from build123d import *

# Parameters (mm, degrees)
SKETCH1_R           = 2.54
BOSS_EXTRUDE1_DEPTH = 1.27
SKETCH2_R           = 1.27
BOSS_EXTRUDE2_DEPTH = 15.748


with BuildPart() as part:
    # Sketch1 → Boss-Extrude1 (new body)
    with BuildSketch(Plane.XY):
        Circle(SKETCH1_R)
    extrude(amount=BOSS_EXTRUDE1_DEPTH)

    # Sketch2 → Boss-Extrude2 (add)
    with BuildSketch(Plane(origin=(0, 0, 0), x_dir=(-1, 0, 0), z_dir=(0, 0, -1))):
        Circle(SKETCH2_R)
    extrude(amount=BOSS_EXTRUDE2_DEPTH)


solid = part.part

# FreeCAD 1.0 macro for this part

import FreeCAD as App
import Part
import Sketcher
from FreeCAD import Vector
Q = App.Units.Quantity

doc = App.newDocument("Part")
body = doc.addObject("PartDesign::Body", "Body")

# Sketch on XY plane
sketch1 = body.newObject("Sketcher::SketchObject", "Sketch")
sketch1.AttachmentSupport = (doc.getObject("XY_Plane"), [""])
sketch1.MapMode = "FlatFace"
sketch1.addGeometry(Part.Circle(Vector(0, 0, 0), Vector(0, 0, 1), 2.5), False)
sketch1.addConstraint([
    Sketcher.Constraint("Coincident", 0, 3, -1, 1),
    Sketcher.Constraint("Diameter", 0, Q("0.2 in")),
])
pad1 = body.newObject("PartDesign::Pad", "Pad")
pad1.Profile = sketch1
pad1.Length = Q("0.05 in")

# Sketch on XY plane
sketch2 = body.newObject("Sketcher::SketchObject", "Sketch001")
sketch2.AttachmentSupport = (doc.getObject("XY_Plane"), [""])
sketch2.MapMode = "FlatFace"
sketch2.addGeometry(Part.Circle(Vector(0, 0, 0), Vector(0, 0, 1), 1.3), False)
sketch2.addConstraint([
    Sketcher.Constraint("Coincident", 0, 3, -1, 1),
    Sketcher.Constraint("Diameter", 0, Q("0.1 in")),
])
pad2 = body.newObject("PartDesign::Pad", "Pad001")
pad2.Profile = sketch2
pad2.Length = Q("0.62 in")
pad2.Reversed = True

doc.recompute()
